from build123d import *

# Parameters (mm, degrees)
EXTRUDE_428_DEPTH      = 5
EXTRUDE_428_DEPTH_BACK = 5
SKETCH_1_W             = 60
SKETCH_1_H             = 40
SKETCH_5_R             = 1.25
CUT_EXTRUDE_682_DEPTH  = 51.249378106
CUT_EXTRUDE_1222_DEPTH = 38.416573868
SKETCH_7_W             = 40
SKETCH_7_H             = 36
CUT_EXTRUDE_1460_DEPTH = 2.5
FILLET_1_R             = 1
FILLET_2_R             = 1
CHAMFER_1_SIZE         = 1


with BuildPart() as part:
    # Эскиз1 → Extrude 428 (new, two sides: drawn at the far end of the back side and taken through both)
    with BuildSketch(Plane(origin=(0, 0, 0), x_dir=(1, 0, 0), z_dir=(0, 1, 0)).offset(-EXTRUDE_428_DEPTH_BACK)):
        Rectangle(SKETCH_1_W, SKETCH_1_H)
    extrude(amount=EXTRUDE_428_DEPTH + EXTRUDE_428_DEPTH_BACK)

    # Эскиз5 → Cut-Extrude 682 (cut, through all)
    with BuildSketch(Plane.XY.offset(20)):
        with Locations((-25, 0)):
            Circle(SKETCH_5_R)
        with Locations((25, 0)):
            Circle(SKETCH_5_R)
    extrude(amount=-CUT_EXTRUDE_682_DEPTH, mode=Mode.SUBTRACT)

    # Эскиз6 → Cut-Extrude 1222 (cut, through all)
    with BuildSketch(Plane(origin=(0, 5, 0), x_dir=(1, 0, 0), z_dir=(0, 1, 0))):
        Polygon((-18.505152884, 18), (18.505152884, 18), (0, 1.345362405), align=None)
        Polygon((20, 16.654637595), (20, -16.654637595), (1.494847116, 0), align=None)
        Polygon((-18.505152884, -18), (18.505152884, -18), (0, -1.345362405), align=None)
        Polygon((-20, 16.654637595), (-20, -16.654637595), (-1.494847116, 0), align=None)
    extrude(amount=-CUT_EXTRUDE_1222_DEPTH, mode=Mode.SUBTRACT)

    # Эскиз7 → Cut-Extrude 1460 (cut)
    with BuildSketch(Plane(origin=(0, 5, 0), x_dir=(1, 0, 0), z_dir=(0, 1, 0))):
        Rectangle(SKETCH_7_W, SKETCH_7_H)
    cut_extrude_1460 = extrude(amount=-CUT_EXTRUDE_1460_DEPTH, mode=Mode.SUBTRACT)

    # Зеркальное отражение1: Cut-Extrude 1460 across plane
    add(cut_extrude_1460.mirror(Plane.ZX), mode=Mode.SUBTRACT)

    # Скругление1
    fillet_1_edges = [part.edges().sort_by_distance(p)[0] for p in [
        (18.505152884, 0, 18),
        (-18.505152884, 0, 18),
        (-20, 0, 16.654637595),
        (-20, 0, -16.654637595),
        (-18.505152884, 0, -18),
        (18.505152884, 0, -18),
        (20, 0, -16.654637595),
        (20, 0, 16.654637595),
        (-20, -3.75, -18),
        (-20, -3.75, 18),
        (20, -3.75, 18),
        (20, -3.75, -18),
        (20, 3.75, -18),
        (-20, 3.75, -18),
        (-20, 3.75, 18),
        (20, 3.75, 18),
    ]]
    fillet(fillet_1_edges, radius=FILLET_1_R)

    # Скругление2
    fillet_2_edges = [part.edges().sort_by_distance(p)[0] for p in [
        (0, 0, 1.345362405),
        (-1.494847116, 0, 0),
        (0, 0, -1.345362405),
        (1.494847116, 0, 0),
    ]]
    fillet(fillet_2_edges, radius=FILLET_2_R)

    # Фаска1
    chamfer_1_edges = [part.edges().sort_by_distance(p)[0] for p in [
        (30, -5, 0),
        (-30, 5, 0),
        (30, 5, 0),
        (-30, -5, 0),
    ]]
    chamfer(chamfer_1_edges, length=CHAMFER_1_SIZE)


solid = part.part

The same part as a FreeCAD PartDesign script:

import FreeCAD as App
import Part
import Sketcher
from FreeCAD import Vector
Q = App.Units.Quantity


def edges_at(feature, points):
    """Names of the edges that pass closest to the given points."""
    edges = feature.Shape.Edges
    near = lambda p: min(range(len(edges)), key=lambda i: edges[i].distToShape(Part.Vertex(*p))[0])
    return sorted({f"Edge{near(p) + 1}" for p in points})


def add_polygon(sketch, points):
    """Adds a closed chain of lines whose ends are joined by coincident constraints."""
    first, n = sketch.GeometryCount, len(points)
    for a, b in zip(points, points[1:] + points[:1]):
        sketch.addGeometry(Part.LineSegment(App.Vector(*a, 0), App.Vector(*b, 0)), False)
    for i in range(n):
        sketch.addConstraint(Sketcher.Constraint("Coincident", first + i, 2, first + (i + 1) % n, 1))

doc = App.newDocument("Part")
params = doc.addObject("Spreadsheet::Sheet", "Params")
for row, (alias, value) in enumerate([
    ("sketch1_width", "60 mm"),
    ("sketch1_height", "40 mm"),
    ("pad1_length", "5 mm"),
    ("pad1_length2", "5 mm"),
    ("sketch2_diameter", "2.5 mm"),
    ("sketch4_width", "40 mm"),
    ("sketch4_height", "36 mm"),
    ("pocket3_length", "2.5 mm"),
    ("fillet_radius", "1 mm"),
    ("fillet2_radius", "1 mm"),
    ("chamfer_size", "1 mm"),
], start=1):
    params.set(f"A{row}", alias)
    params.set(f"B{row}", "=" + value)
    params.setAlias(f"B{row}", alias)

body = doc.addObject("PartDesign::Body", "Body")

sketch1 = doc.addObject("Sketcher::SketchObject", "Sketch")
body.addObject(sketch1)
sketch1.AttachmentSupport = (doc.XZ_Plane, [""])
sketch1.MapMode = "FlatFace"
add_polygon(sketch1, [(-30, -20), (-30, 20), (30, 20), (30, -20)])
sketch1.addConstraint([
    Sketcher.Constraint("Vertical", 0),
    Sketcher.Constraint("Horizontal", 1),
    Sketcher.Constraint("Vertical", 2),
    Sketcher.Constraint("Horizontal", 3),
    Sketcher.Constraint("Symmetric", 0, 2, 2, 2, -1, 1),
    Sketcher.Constraint("DistanceX", 1, 1, 1, 2, Q("60 mm")),
    Sketcher.Constraint("DistanceY", 0, 1, 0, 2, Q("40 mm")),
])
sketch1.setExpression("Constraints[9]", "Params.sketch1_width")
sketch1.setExpression("Constraints[10]", "Params.sketch1_height")
pad1 = doc.addObject("PartDesign::Pad", "Pad")
body.addObject(pad1)
pad1.Profile = sketch1
pad1.Type = "TwoLengths"
pad1.setExpression("Length", "Params.pad1_length")
pad1.setExpression("Length2", "Params.pad1_length2")
pad1.Reversed = True

sketch2 = doc.addObject("Sketcher::SketchObject", "Sketch001")
body.addObject(sketch2)
sketch2.AttachmentSupport = (doc.XY_Plane, [""])
sketch2.MapMode = "FlatFace"
sketch2.AttachmentOffset = App.Placement(Vector(0, 0, 20), App.Rotation())
sketch2.addGeometry([
    Part.Circle(Vector(-25, 0, 0), Vector(0, 0, 1), 1.2),
    Part.Circle(Vector(25, 0, 0), Vector(0, 0, 1), 1.2),
], False)
sketch2.addConstraint([
    Sketcher.Constraint("Equal", 0, 1),
    Sketcher.Constraint("Symmetric", 0, 3, 1, 3, -1, 1),
    Sketcher.Constraint("PointOnObject", 0, 3, -1),
    Sketcher.Constraint("Diameter", 0, Q("2.5 mm")),
    Sketcher.Constraint("DistanceX", 0, 3, -1, 1, Q("25 mm")),
])
sketch2.setExpression("Constraints[3]", "Params.sketch2_diameter")
pocket1 = doc.addObject("PartDesign::Pocket", "Pocket")
body.addObject(pocket1)
pocket1.Profile = sketch2
pocket1.Type = "ThroughAll"

sketch3 = doc.addObject("Sketcher::SketchObject", "Sketch002")
body.addObject(sketch3)
sketch3.AttachmentSupport = (doc.XZ_Plane, [""])
sketch3.MapMode = "FlatFace"
sketch3.AttachmentOffset = App.Placement(Vector(0, 0, -5), App.Rotation())
add_polygon(sketch3, [(19, -18), (-19, -18), (0, -1)])
add_polygon(sketch3, [(20, 17), (20, -17), (1, 0)])
add_polygon(sketch3, [(-19, 18), (19, 18), (0, 1)])
add_polygon(sketch3, [(-20, -17), (-20, 17), (-1, 0)])
sketch3.addConstraint([
    Sketcher.Constraint("Horizontal", 0),
    Sketcher.Constraint("Vertical", 3),
    Sketcher.Constraint("Horizontal", 6),
    Sketcher.Constraint("Vertical", 9),
    Sketcher.Constraint("Symmetric", 0, 2, 6, 2, -1, 1),
    Sketcher.Constraint("Symmetric", 1, 2, 7, 2, -1, 1),
    Sketcher.Constraint("Symmetric", 3, 2, 9, 2, -1, 1),
    Sketcher.Constraint("Symmetric", 4, 2, 10, 2, -1, 1),
    Sketcher.Constraint("PointOnObject", 1, 2, -2),
    Sketcher.Constraint("PointOnObject", 4, 2, -1),
    Sketcher.Constraint("Parallel", 2, 4),
    Sketcher.Constraint("Parallel", 1, 5),
    Sketcher.Constraint("Parallel", 4, 8),
    Sketcher.Constraint("Parallel", 7, 11),
    Sketcher.Constraint("Horizontal", 5, 2, 9, 2),
    Sketcher.Constraint("Equal", 2, 4),
    Sketcher.Constraint("DistanceY", 0, 2, -1, 1, Q("18 mm")),
    Sketcher.Constraint("DistanceX", -1, 1, 3, 2, Q("20 mm")),
    Sketcher.Constraint("DistanceX", 0, 2, 0, 1, Q("37.010306 mm")),
    Sketcher.Constraint("DistanceY", 3, 2, 3, 1, Q("33.309275 mm")),
])
pocket2 = doc.addObject("PartDesign::Pocket", "Pocket001")
body.addObject(pocket2)
pocket2.Profile = sketch3
pocket2.Type = "ThroughAll"
pocket2.Reversed = True

sketch4 = doc.addObject("Sketcher::SketchObject", "Sketch003")
body.addObject(sketch4)
sketch4.AttachmentSupport = (doc.XZ_Plane, [""])
sketch4.MapMode = "FlatFace"
sketch4.AttachmentOffset = App.Placement(Vector(0, 0, -5), App.Rotation())
add_polygon(sketch4, [(-20, -18), (-20, 18), (20, 18), (20, -18)])
sketch4.addConstraint([
    Sketcher.Constraint("Vertical", 0),
    Sketcher.Constraint("Horizontal", 1),
    Sketcher.Constraint("Vertical", 2),
    Sketcher.Constraint("Horizontal", 3),
    Sketcher.Constraint("Symmetric", 0, 2, 2, 2, -1, 1),
    Sketcher.Constraint("DistanceX", 1, 1, 1, 2, Q("40 mm")),
    Sketcher.Constraint("DistanceY", 0, 1, 0, 2, Q("36 mm")),
])
sketch4.setExpression("Constraints[9]", "Params.sketch4_width")
sketch4.setExpression("Constraints[10]", "Params.sketch4_height")
pocket3 = doc.addObject("PartDesign::Pocket", "Pocket002")
body.addObject(pocket3)
pocket3.Profile = sketch4
pocket3.setExpression("Length", "Params.pocket3_length")
pocket3.Reversed = True
doc.recompute()

mirrored = doc.addObject("PartDesign::Mirrored", "Mirrored")
body.addObject(mirrored)
mirrored.Originals = [pocket3]
mirrored.MirrorPlane = (doc.XZ_Plane, [""])
body.Tip = mirrored
doc.recompute()

fillet = doc.addObject("PartDesign::Fillet", "Fillet")
body.addObject(fillet)
fillet.Base = (mirrored, edges_at(mirrored, [
    (18.505, 0, 18),
    (-18.505, 0, 18),
    (-20, 0, 16.655),
    (-20, 0, -16.655),
    (-18.505, 0, -18),
    (18.505, 0, -18),
    (20, 0, -16.655),
    (20, 0, 16.655),
    (-20, -3.75, -18),
    (-20, -3.75, 18),
    (20, -3.75, 18),
    (20, -3.75, -18),
    (20, 3.75, -18),
    (-20, 3.75, -18),
    (-20, 3.75, 18),
    (20, 3.75, 18),
]))
fillet.setExpression("Radius", "Params.fillet_radius")
doc.recompute()

fillet2 = doc.addObject("PartDesign::Fillet", "Fillet001")
body.addObject(fillet2)
fillet2.Base = (fillet, edges_at(fillet, [
    (0, 0, 1.345),
    (-1.495, 0, 0),
    (0, 0, -1.345),
    (1.495, 0, 0),
]))
fillet2.setExpression("Radius", "Params.fillet2_radius")
doc.recompute()

chamfer = doc.addObject("PartDesign::Chamfer", "Chamfer")
body.addObject(chamfer)
chamfer.Base = (fillet2, edges_at(fillet2, [
    (30, -5, 0),
    (-30, 5, 0),
    (30, 5, 0),
    (-30, -5, 0),
]))
chamfer.setExpression("Size", "Params.chamfer_size")

doc.recompute()
